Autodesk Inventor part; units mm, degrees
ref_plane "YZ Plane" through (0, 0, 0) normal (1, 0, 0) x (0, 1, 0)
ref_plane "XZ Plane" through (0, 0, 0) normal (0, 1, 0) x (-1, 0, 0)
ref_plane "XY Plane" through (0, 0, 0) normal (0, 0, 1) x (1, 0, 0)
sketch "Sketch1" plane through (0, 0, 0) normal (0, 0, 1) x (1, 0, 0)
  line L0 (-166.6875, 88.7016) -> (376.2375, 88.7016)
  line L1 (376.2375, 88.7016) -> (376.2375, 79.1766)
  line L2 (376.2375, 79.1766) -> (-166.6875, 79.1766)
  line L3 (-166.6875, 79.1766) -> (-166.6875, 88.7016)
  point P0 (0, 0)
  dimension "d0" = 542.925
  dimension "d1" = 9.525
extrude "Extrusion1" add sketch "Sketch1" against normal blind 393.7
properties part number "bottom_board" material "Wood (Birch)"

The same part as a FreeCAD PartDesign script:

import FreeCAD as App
import Part
import Sketcher
Q = App.Units.Quantity

doc = App.newDocument("Part")
params = doc.addObject("Spreadsheet::Sheet", "Params")
for row, (alias, value) in enumerate([
    ("sketch1_width", "21.375 in"),
    ("sketch1_height", "0.375 in"),
    ("pad1_length", "15.5 in"),
], start=1):
    params.set(f"A{row}", alias)
    params.set(f"B{row}", "=" + value)
    params.setAlias(f"B{row}", alias)

body = doc.addObject("PartDesign::Body", "Body")

# Sketch on XY plane
sketch1 = body.newObject("Sketcher::SketchObject", "Sketch")
sketch1.AttachmentSupport = (doc.getObject("XY_Plane"), [""])
sketch1.MapMode = "FlatFace"
sketch1.addGeometry([
    Part.LineSegment(App.Vector(376.2375, 88.7016, 0), App.Vector(-166.6875, 88.7016, 0)),
    Part.LineSegment(App.Vector(-166.6875, 88.7016, 0), App.Vector(-166.6875, 79.1766, 0)),
    Part.LineSegment(App.Vector(-166.6875, 79.1766, 0), App.Vector(376.2375, 79.1766, 0)),
    Part.LineSegment(App.Vector(376.2375, 79.1766, 0), App.Vector(376.2375, 88.7016, 0)),
], False)
sketch1.addConstraint([
    Sketcher.Constraint("Coincident", 0, 2, 1, 1),
    Sketcher.Constraint("Coincident", 1, 2, 2, 1),
    Sketcher.Constraint("Coincident", 2, 2, 3, 1),
    Sketcher.Constraint("Coincident", 3, 2, 0, 1),
    Sketcher.Constraint("Horizontal", 0),
    Sketcher.Constraint("Vertical", 1),
    Sketcher.Constraint("Horizontal", 2),
    Sketcher.Constraint("Vertical", 3),
    Sketcher.Constraint("DistanceX", 0, 2, 0, 1, Q("21.375 in")),
    Sketcher.Constraint("DistanceY", 1, 2, 1, 1, Q("0.375 in")),
    Sketcher.Constraint("DistanceX", 0, 2, -1, 1, Q("6.5625 in")),
    Sketcher.Constraint("DistanceY", -1, 1, 0, 2, Q("3.4922 in")),
])
sketch1.setExpression("Constraints[8]", "Params.sketch1_width")
sketch1.setExpression("Constraints[9]", "Params.sketch1_height")
pad1 = body.newObject("PartDesign::Pad", "Pad")
pad1.Profile = sketch1
pad1.setExpression("Length", "Params.pad1_length")
pad1.Reversed = True

doc.recompute()
